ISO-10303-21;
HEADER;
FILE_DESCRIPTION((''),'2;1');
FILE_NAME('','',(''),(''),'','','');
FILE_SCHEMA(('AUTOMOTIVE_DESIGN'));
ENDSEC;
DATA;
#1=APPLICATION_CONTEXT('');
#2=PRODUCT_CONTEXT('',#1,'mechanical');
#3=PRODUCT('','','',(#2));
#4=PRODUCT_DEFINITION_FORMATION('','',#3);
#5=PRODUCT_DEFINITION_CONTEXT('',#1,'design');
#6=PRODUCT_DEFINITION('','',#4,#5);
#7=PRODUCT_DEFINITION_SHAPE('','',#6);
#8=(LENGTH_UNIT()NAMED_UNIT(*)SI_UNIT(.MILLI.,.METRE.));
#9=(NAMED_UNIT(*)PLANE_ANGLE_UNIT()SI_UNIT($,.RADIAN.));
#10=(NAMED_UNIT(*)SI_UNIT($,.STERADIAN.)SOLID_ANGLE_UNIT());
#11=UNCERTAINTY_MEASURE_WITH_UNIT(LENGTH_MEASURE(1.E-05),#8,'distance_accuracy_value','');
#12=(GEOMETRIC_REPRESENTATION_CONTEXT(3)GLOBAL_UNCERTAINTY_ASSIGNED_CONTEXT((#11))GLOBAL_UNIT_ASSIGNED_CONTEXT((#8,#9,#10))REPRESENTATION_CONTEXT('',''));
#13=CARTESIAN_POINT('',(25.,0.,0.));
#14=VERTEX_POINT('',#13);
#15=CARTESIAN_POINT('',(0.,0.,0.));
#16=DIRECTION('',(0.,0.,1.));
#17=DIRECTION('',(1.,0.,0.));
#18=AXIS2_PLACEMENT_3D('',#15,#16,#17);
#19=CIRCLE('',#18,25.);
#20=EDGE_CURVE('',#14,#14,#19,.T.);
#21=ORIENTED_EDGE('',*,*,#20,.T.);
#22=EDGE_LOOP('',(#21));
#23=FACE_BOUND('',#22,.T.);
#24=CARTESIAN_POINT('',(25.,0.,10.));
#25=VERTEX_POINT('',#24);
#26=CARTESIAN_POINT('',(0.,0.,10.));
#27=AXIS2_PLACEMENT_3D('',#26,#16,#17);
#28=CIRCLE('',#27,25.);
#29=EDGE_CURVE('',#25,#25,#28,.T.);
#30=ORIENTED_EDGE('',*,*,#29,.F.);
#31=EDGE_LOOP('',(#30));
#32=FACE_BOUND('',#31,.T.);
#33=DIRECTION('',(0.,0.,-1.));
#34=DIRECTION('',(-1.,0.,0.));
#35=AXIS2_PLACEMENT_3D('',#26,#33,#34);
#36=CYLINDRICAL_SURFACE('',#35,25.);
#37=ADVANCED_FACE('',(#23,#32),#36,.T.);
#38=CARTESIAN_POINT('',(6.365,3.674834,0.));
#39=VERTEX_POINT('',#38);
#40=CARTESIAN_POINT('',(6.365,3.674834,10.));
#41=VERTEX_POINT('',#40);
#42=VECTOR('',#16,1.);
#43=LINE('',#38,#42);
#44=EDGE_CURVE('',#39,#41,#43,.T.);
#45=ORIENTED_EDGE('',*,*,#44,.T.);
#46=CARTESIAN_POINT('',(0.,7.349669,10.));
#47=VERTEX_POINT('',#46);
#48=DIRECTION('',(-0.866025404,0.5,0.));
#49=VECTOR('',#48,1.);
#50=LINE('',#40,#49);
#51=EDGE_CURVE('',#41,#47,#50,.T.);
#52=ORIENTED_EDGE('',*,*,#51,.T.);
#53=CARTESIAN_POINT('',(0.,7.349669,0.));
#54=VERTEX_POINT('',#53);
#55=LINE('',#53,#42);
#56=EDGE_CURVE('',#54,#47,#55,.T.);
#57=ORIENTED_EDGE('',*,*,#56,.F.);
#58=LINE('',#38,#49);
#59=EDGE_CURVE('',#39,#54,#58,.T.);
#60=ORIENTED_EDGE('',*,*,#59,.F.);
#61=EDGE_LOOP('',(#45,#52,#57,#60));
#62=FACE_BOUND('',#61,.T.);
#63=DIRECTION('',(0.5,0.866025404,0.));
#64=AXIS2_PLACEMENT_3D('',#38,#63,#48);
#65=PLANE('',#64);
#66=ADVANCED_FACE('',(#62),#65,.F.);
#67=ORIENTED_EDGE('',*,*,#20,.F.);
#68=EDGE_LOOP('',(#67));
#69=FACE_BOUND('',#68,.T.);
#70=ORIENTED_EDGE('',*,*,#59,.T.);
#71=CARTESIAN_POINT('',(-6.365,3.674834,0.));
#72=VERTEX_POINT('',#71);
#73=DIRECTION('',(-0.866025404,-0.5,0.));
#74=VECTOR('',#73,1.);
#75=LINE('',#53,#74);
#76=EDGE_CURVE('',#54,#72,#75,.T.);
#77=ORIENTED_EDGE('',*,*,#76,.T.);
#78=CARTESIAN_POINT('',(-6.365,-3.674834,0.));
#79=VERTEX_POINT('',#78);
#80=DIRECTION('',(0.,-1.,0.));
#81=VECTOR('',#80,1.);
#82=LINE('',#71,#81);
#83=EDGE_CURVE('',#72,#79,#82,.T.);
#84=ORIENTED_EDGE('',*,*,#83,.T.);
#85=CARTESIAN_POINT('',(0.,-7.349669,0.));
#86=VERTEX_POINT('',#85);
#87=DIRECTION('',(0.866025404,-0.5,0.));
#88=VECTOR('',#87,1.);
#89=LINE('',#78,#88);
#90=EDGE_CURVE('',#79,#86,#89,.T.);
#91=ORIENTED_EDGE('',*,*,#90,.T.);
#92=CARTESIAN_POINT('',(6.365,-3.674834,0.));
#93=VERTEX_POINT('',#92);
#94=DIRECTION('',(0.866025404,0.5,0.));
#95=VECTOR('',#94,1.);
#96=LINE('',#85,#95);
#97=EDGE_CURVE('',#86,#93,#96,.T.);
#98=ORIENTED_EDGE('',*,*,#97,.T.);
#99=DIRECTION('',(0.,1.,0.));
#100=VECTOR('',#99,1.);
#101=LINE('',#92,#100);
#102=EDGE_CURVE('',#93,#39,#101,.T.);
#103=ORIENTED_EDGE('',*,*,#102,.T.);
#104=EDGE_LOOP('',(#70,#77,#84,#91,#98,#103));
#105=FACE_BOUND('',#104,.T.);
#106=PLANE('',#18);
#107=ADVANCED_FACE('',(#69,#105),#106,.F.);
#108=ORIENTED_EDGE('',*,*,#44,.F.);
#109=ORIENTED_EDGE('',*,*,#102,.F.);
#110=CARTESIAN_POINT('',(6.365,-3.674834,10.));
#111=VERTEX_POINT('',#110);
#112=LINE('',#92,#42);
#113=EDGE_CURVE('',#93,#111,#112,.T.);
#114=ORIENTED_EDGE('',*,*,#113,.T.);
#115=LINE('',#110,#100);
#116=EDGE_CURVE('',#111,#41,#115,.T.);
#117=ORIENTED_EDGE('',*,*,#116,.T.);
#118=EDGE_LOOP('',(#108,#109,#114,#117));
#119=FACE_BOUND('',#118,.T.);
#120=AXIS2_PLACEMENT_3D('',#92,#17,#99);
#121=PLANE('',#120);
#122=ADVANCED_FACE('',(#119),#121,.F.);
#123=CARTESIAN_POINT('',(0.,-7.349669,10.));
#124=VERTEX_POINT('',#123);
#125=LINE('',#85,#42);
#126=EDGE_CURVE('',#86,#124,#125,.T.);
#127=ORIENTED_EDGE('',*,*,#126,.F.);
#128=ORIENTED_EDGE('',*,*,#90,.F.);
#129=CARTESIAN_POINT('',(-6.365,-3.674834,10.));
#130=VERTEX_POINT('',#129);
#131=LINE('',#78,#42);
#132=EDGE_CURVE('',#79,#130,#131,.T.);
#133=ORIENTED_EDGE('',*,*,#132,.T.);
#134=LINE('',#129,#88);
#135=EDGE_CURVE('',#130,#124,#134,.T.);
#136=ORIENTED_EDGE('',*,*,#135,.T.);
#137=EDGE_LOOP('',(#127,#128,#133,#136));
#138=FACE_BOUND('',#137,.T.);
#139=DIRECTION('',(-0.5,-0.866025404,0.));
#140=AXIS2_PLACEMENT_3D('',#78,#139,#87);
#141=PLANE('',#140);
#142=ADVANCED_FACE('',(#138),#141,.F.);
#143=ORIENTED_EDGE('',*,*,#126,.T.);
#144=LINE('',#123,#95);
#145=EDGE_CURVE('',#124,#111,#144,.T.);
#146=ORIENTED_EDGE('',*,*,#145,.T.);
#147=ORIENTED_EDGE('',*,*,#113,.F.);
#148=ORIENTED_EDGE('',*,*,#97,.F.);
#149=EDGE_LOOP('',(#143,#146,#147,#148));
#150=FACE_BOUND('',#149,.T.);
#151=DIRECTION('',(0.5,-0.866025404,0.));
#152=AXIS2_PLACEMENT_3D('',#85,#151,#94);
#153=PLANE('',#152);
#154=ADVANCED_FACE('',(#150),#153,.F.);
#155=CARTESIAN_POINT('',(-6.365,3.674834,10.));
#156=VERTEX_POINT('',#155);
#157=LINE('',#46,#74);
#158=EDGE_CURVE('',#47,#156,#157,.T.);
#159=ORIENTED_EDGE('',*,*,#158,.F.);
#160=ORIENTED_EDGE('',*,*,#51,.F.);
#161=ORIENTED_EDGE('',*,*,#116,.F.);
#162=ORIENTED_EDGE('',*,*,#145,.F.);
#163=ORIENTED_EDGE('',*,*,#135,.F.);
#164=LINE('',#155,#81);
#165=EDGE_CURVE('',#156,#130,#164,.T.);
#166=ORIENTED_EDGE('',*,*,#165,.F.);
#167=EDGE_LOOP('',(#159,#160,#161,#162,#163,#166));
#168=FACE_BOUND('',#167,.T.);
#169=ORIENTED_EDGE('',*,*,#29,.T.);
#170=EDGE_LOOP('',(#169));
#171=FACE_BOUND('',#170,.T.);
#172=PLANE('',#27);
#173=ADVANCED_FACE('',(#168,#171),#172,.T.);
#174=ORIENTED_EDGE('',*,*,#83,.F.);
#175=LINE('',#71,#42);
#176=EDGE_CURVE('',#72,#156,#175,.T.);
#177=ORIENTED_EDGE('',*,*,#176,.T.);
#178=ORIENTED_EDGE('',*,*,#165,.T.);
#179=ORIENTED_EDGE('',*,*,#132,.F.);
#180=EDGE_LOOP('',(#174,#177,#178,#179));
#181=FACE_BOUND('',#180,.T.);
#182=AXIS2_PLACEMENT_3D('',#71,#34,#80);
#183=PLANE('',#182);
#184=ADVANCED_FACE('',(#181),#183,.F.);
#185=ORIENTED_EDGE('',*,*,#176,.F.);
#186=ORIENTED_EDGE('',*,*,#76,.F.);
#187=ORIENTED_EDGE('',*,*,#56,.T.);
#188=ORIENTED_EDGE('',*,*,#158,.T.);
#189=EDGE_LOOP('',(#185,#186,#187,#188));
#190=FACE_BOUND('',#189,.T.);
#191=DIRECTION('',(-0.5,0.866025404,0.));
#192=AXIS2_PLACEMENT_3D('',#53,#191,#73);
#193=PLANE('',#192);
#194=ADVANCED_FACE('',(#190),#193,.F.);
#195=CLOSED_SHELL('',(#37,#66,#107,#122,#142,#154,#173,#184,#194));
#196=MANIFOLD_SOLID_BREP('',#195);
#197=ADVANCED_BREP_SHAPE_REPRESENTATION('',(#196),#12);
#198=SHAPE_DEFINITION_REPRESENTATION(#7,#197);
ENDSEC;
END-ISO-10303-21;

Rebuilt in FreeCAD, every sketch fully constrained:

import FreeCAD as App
import Part
import Sketcher
from FreeCAD import Vector
Q = App.Units.Quantity


def add_polygon(sketch, points):
    """Adds a closed chain of lines whose ends are joined by coincident constraints."""
    first, n = sketch.GeometryCount, len(points)
    for a, b in zip(points, points[1:] + points[:1]):
        sketch.addGeometry(Part.LineSegment(App.Vector(*a, 0), App.Vector(*b, 0)), False)
    for i in range(n):
        sketch.addConstraint(Sketcher.Constraint("Coincident", first + i, 2, first + (i + 1) % n, 1))

doc = App.newDocument("Part")
body = doc.addObject("PartDesign::Body", "Body")

sketch1 = doc.addObject("Sketcher::SketchObject", "Sketch")
body.addObject(sketch1)
sketch1.AttachmentSupport = (doc.XY_Plane, [""])
sketch1.MapMode = "FlatFace"
sketch1.addGeometry(Part.Circle(Vector(0, 0, 0), Vector(0, 0, 1), 25), False)
sketch1.addConstraint([
    Sketcher.Constraint("Coincident", 0, 3, -1, 1),
    Sketcher.Constraint("Diameter", 0, Q("50 mm")),
])
pad1 = doc.addObject("PartDesign::Pad", "Pad")
body.addObject(pad1)
pad1.Profile = sketch1
pad1.Length = 10

sketch2 = doc.addObject("Sketcher::SketchObject", "Sketch001")
body.addObject(sketch2)
sketch2.AttachmentSupport = (doc.XY_Plane, [""])
sketch2.MapMode = "FlatFace"
sketch2.AttachmentOffset = App.Placement(Vector(0, 0, 10), App.Rotation())
add_polygon(sketch2, [(0, 7.349669), (-6.365, 3.674834), (-6.365, -3.674834), (0, -7.349669), (6.365, -3.674834), (6.365, 3.674834)])
sketch2.addConstraint([
    Sketcher.Constraint("Vertical", 1),
    Sketcher.Constraint("Vertical", 4),
    Sketcher.Constraint("Symmetric", 0, 2, 3, 2, -1, 1),
    Sketcher.Constraint("Symmetric", 2, 2, 5, 2, -1, 1),
    Sketcher.Constraint("PointOnObject", 2, 2, -2),
    Sketcher.Constraint("Parallel", 2, 5),
    Sketcher.Constraint("Horizontal", 1, 2, 3, 2),
    Sketcher.Constraint("Angle", 0, Q("-150 deg")),
    Sketcher.Constraint("DistanceX", 1, 2, 3, 2, Q("12.73 mm")),
    Sketcher.Constraint("DistanceY", 1, 2, 1, 1, Q("7.349669 mm")),
])
pocket1 = doc.addObject("PartDesign::Pocket", "Pocket")
body.addObject(pocket1)
pocket1.Profile = sketch2
pocket1.Length = 10

doc.recompute()
